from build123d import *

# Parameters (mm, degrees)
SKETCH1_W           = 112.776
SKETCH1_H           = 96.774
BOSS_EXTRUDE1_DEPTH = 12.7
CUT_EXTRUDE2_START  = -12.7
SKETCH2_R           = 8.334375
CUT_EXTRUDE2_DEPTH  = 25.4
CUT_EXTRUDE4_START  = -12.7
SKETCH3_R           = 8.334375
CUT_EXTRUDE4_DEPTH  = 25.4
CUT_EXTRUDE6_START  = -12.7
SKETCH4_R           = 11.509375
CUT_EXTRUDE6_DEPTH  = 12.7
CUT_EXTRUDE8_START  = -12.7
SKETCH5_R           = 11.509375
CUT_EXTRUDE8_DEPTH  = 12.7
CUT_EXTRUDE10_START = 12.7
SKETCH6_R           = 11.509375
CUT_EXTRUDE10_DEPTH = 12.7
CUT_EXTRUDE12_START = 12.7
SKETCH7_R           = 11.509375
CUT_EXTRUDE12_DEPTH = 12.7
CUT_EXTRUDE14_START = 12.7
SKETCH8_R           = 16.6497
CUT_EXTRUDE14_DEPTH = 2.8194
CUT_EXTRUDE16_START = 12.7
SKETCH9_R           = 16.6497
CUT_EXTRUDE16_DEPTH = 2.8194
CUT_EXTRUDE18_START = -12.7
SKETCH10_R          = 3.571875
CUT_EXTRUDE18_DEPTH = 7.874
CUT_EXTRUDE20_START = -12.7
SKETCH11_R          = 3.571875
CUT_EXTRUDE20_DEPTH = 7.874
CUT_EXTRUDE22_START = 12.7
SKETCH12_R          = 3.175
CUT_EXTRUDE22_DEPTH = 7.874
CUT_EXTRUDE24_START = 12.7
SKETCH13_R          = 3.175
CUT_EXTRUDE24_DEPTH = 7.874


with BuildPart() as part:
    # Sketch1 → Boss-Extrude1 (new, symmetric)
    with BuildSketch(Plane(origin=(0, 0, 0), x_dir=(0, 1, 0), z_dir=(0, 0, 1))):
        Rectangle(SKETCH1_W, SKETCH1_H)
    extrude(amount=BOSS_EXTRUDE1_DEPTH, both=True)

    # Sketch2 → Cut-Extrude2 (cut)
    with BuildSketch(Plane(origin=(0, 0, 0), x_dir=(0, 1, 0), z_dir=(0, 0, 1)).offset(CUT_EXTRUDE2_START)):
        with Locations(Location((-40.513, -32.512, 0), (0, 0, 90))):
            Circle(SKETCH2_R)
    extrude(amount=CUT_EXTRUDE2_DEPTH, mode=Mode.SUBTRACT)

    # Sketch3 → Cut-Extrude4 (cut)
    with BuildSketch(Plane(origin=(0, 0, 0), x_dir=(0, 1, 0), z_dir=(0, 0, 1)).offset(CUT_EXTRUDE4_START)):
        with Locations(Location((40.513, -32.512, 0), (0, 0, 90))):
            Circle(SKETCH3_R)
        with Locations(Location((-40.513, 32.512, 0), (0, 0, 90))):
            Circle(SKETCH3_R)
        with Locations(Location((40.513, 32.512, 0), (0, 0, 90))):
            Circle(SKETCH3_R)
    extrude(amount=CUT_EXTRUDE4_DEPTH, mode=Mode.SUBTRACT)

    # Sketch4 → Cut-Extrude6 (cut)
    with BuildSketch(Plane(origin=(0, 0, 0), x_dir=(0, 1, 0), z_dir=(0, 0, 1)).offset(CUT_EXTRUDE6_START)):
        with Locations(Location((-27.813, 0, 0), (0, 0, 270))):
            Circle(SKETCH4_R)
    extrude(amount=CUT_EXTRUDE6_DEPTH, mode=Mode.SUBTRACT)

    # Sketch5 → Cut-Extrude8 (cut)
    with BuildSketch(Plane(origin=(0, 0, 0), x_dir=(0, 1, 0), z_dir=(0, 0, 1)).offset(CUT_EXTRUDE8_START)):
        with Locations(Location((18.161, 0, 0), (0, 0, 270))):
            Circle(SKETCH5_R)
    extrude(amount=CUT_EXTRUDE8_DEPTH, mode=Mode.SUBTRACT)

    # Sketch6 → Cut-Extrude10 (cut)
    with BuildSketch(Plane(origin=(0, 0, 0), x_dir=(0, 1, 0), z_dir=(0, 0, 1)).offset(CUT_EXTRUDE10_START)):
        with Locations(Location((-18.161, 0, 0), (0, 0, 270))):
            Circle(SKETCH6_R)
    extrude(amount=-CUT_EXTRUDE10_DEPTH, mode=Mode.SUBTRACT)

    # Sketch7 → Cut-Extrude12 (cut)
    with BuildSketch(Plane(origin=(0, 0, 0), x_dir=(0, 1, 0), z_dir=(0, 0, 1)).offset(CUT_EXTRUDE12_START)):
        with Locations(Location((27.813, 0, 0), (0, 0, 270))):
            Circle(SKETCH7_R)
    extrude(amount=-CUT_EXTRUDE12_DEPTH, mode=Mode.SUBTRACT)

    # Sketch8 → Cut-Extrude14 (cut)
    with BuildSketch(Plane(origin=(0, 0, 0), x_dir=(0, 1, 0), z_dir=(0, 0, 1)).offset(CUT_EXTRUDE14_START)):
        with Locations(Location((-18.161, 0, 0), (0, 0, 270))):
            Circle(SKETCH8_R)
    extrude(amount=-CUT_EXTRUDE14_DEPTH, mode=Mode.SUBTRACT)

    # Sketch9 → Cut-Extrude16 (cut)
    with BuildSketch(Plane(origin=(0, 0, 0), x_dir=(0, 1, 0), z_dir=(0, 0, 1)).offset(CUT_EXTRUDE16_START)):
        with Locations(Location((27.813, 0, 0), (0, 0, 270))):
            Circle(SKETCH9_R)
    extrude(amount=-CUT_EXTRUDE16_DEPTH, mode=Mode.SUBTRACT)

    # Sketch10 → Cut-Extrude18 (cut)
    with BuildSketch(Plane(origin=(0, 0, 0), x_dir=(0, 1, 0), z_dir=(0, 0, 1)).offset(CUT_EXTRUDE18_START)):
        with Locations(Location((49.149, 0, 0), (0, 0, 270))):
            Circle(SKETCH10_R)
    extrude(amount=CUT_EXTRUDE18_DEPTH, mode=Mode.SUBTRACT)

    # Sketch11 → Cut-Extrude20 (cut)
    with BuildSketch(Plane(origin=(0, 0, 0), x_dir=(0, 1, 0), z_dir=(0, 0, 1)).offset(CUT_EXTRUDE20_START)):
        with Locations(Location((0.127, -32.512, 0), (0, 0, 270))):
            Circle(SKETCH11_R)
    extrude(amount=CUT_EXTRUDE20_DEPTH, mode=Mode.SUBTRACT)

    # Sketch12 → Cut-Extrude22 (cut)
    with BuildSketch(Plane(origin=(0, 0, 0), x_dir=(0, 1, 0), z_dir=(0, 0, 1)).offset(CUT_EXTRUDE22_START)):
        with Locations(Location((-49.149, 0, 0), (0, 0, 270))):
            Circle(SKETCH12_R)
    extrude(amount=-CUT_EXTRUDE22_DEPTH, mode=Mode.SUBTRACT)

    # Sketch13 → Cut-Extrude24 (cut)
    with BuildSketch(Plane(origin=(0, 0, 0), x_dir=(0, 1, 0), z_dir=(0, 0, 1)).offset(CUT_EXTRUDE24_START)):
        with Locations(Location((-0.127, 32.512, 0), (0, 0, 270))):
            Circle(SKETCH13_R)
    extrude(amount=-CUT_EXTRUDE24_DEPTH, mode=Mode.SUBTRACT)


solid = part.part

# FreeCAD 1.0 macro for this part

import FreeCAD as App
import Part
import Sketcher
Q = App.Units.Quantity


def add_polygon(sketch, points):
    """Adds a closed chain of lines whose ends are joined by coincident constraints."""
    first, n = sketch.GeometryCount, len(points)
    for a, b in zip(points, points[1:] + points[:1]):
        sketch.addGeometry(Part.LineSegment(App.Vector(*a, 0), App.Vector(*b, 0)), False)
    for i in range(n):
        sketch.addConstraint(Sketcher.Constraint("Coincident", first + i, 2, first + (i + 1) % n, 1))

doc = App.newDocument("Part")
params = doc.addObject("Spreadsheet::Sheet", "Params")
for row, (alias, value) in enumerate([
    ("sketch1_width", "3.81 in"),
    ("sketch1_height", "4.44 in"),
    ("pad1_length", "1 in"),
    ("sketch2_diameter", "0.65625 in"),
    ("pocket1_length", "1 in"),
    ("sketch3_diameter", "0.65625 in"),
    ("pocket2_length", "1 in"),
    ("sketch4_diameter", "0.90625 in"),
    ("pocket3_length", "0.5 in"),
    ("sketch5_diameter", "0.90625 in"),
    ("pocket4_length", "0.5 in"),
    ("sketch6_diameter", "0.90625 in"),
    ("pocket5_length", "0.5 in"),
    ("sketch7_diameter", "0.90625 in"),
    ("pocket6_length", "0.5 in"),
    ("sketch8_diameter", "1.311 in"),
    ("pocket7_length", "0.111 in"),
    ("sketch9_diameter", "1.311 in"),
    ("pocket8_length", "0.111 in"),
    ("sketch10_diameter", "0.28125 in"),
    ("pocket9_length", "0.31 in"),
    ("sketch11_diameter", "0.28125 in"),
    ("pocket10_length", "0.31 in"),
    ("sketch12_diameter", "0.25 in"),
    ("pocket11_length", "0.31 in"),
    ("sketch13_diameter", "0.25 in"),
    ("pocket12_length", "0.31 in"),
], start=1):
    params.set(f"A{row}", alias)
    params.set(f"B{row}", "=" + value)
    params.setAlias(f"B{row}", alias)

body = doc.addObject("PartDesign::Body", "Body")

# Sketch on XY plane
sketch1 = body.newObject("Sketcher::SketchObject", "Sketch")
sketch1.AttachmentSupport = (doc.getObject("XY_Plane"), [""])
sketch1.MapMode = "FlatFace"
add_polygon(sketch1, [(-48, -56), (48, -56), (48, 56), (-48, 56)])  # lines 0-3
sketch1.addConstraint(Sketcher.Constraint("Horizontal", 0))
sketch1.addConstraint(Sketcher.Constraint("Vertical", 1))
sketch1.addConstraint(Sketcher.Constraint("Horizontal", 2))
sketch1.addConstraint(Sketcher.Constraint("Vertical", 3))
sketch1.addConstraint(Sketcher.Constraint("Symmetric", 0, 2, 2, 2, -1, 1))
sketch1.addConstraint(Sketcher.Constraint("DistanceX", 0, 1, 0, 2, Q("3.81 in")))
sketch1.addConstraint(Sketcher.Constraint("DistanceY", 1, 1, 1, 2, Q("4.44 in")))
sketch1.setExpression("Constraints[9]", "Params.sketch1_width")
sketch1.setExpression("Constraints[10]", "Params.sketch1_height")
pad1 = body.newObject("PartDesign::Pad", "Pad")
pad1.Profile = sketch1
pad1.setExpression("Length", "Params.pad1_length")
pad1.Midplane = True

# Sketch on XY plane
sketch2 = body.newObject("Sketcher::SketchObject", "Sketch001")
sketch2.AttachmentSupport = (doc.getObject("XY_Plane"), [""])
sketch2.MapMode = "FlatFace"
sketch2.AttachmentOffset = App.Placement(App.Vector(0, 0, -0.5 * 25.4), App.Rotation())
sketch2.addGeometry(Part.Circle(App.Vector(33, -41, 0), App.Vector(0, 0, 1), 8), False)
sketch2.addConstraint(Sketcher.Constraint("Diameter", 0, Q("0.65625 in")))
sketch2.addConstraint(Sketcher.Constraint("DistanceX", -1, 1, 0, 3, Q("1.28 in")))
sketch2.addConstraint(Sketcher.Constraint("DistanceY", 0, 3, -1, 1, Q("1.595 in")))
sketch2.setExpression("Constraints[0]", "Params.sketch2_diameter")
pocket1 = body.newObject("PartDesign::Pocket", "Pocket")
pocket1.Profile = sketch2
pocket1.setExpression("Length", "Params.pocket1_length")
pocket1.Reversed = True

# Sketch on XY plane
sketch3 = body.newObject("Sketcher::SketchObject", "Sketch002")
sketch3.AttachmentSupport = (doc.getObject("XY_Plane"), [""])
sketch3.MapMode = "FlatFace"
sketch3.AttachmentOffset = App.Placement(App.Vector(0, 0, -0.5 * 25.4), App.Rotation())
sketch3.addGeometry(Part.Circle(App.Vector(33, 41, 0), App.Vector(0, 0, 1), 8), False)
sketch3.addGeometry(Part.Circle(App.Vector(-33, -41, 0), App.Vector(0, 0, 1), 8), False)
sketch3.addGeometry(Part.Circle(App.Vector(-33, 41, 0), App.Vector(0, 0, 1), 8), False)
sketch3.addConstraint(Sketcher.Constraint("Equal", 0, 1))
sketch3.addConstraint(Sketcher.Constraint("Equal", 1, 2))
sketch3.addConstraint(Sketcher.Constraint("Symmetric", 0, 3, 1, 3, -1, 1))
sketch3.addConstraint(Sketcher.Constraint("Symmetric", 0, 3, 2, 3, -2))
sketch3.addConstraint(Sketcher.Constraint("Diameter", 0, Q("0.65625 in")))
sketch3.addConstraint(Sketcher.Constraint("DistanceX", -1, 1, 0, 3, Q("1.28 in")))
sketch3.addConstraint(Sketcher.Constraint("DistanceY", 1, 3, 0, 3, Q("3.19 in")))
sketch3.setExpression("Constraints[4]", "Params.sketch3_diameter")
pocket2 = body.newObject("PartDesign::Pocket", "Pocket001")
pocket2.Profile = sketch3
pocket2.setExpression("Length", "Params.pocket2_length")
pocket2.Reversed = True

# Sketch on XY plane
sketch4 = body.newObject("Sketcher::SketchObject", "Sketch003")
sketch4.AttachmentSupport = (doc.getObject("XY_Plane"), [""])
sketch4.MapMode = "FlatFace"
sketch4.AttachmentOffset = App.Placement(App.Vector(0, 0, -0.5 * 25.4), App.Rotation())
sketch4.addGeometry(Part.Circle(App.Vector(0, -28, 0), App.Vector(0, 0, 1), 12), False)
sketch4.addConstraint(Sketcher.Constraint("PointOnObject", 0, 3, -2))
sketch4.addConstraint(Sketcher.Constraint("Diameter", 0, Q("0.90625 in")))
sketch4.addConstraint(Sketcher.Constraint("DistanceY", 0, 3, -1, 1, Q("1.095 in")))
sketch4.setExpression("Constraints[1]", "Params.sketch4_diameter")
pocket3 = body.newObject("PartDesign::Pocket", "Pocket002")
pocket3.Profile = sketch4
pocket3.setExpression("Length", "Params.pocket3_length")
pocket3.Reversed = True

# Sketch on XY plane
sketch5 = body.newObject("Sketcher::SketchObject", "Sketch004")
sketch5.AttachmentSupport = (doc.getObject("XY_Plane"), [""])
sketch5.MapMode = "FlatFace"
sketch5.AttachmentOffset = App.Placement(App.Vector(0, 0, -0.5 * 25.4), App.Rotation())
sketch5.addGeometry(Part.Circle(App.Vector(0, 18, 0), App.Vector(0, 0, 1), 12), False)
sketch5.addConstraint(Sketcher.Constraint("PointOnObject", 0, 3, -2))
sketch5.addConstraint(Sketcher.Constraint("Diameter", 0, Q("0.90625 in")))
sketch5.addConstraint(Sketcher.Constraint("DistanceY", -1, 1, 0, 3, Q("0.715 in")))
sketch5.setExpression("Constraints[1]", "Params.sketch5_diameter")
pocket4 = body.newObject("PartDesign::Pocket", "Pocket003")
pocket4.Profile = sketch5
pocket4.setExpression("Length", "Params.pocket4_length")
pocket4.Reversed = True

# Sketch on XY plane
sketch6 = body.newObject("Sketcher::SketchObject", "Sketch005")
sketch6.AttachmentSupport = (doc.getObject("XY_Plane"), [""])
sketch6.MapMode = "FlatFace"
sketch6.AttachmentOffset = App.Placement(App.Vector(0, 0, 0.5 * 25.4), App.Rotation())
sketch6.addGeometry(Part.Circle(App.Vector(0, -18, 0), App.Vector(0, 0, 1), 12), False)
sketch6.addConstraint(Sketcher.Constraint("PointOnObject", 0, 3, -2))
sketch6.addConstraint(Sketcher.Constraint("Diameter", 0, Q("0.90625 in")))
sketch6.addConstraint(Sketcher.Constraint("DistanceY", 0, 3, -1, 1, Q("0.715 in")))
sketch6.setExpression("Constraints[1]", "Params.sketch6_diameter")
pocket5 = body.newObject("PartDesign::Pocket", "Pocket004")
pocket5.Profile = sketch6
pocket5.setExpression("Length", "Params.pocket5_length")

# Sketch on XY plane
sketch7 = body.newObject("Sketcher::SketchObject", "Sketch006")
sketch7.AttachmentSupport = (doc.getObject("XY_Plane"), [""])
sketch7.MapMode = "FlatFace"
sketch7.AttachmentOffset = App.Placement(App.Vector(0, 0, 0.5 * 25.4), App.Rotation())
sketch7.addGeometry(Part.Circle(App.Vector(0, 28, 0), App.Vector(0, 0, 1), 12), False)
sketch7.addConstraint(Sketcher.Constraint("PointOnObject", 0, 3, -2))
sketch7.addConstraint(Sketcher.Constraint("Diameter", 0, Q("0.90625 in")))
sketch7.addConstraint(Sketcher.Constraint("DistanceY", -1, 1, 0, 3, Q("1.095 in")))
sketch7.setExpression("Constraints[1]", "Params.sketch7_diameter")
pocket6 = body.newObject("PartDesign::Pocket", "Pocket005")
pocket6.Profile = sketch7
pocket6.setExpression("Length", "Params.pocket6_length")

# Sketch on XY plane
sketch8 = body.newObject("Sketcher::SketchObject", "Sketch007")
sketch8.AttachmentSupport = (doc.getObject("XY_Plane"), [""])
sketch8.MapMode = "FlatFace"
sketch8.AttachmentOffset = App.Placement(App.Vector(0, 0, 0.5 * 25.4), App.Rotation())
sketch8.addGeometry(Part.Circle(App.Vector(0, -18, 0), App.Vector(0, 0, 1), 17), False)
sketch8.addConstraint(Sketcher.Constraint("PointOnObject", 0, 3, -2))
sketch8.addConstraint(Sketcher.Constraint("Diameter", 0, Q("1.311 in")))
sketch8.addConstraint(Sketcher.Constraint("DistanceY", 0, 3, -1, 1, Q("0.715 in")))
sketch8.setExpression("Constraints[1]", "Params.sketch8_diameter")
pocket7 = body.newObject("PartDesign::Pocket", "Pocket006")
pocket7.Profile = sketch8
pocket7.setExpression("Length", "Params.pocket7_length")

# Sketch on XY plane
sketch9 = body.newObject("Sketcher::SketchObject", "Sketch008")
sketch9.AttachmentSupport = (doc.getObject("XY_Plane"), [""])
sketch9.MapMode = "FlatFace"
sketch9.AttachmentOffset = App.Placement(App.Vector(0, 0, 0.5 * 25.4), App.Rotation())
sketch9.addGeometry(Part.Circle(App.Vector(0, 28, 0), App.Vector(0, 0, 1), 17), False)
sketch9.addConstraint(Sketcher.Constraint("PointOnObject", 0, 3, -2))
sketch9.addConstraint(Sketcher.Constraint("Diameter", 0, Q("1.311 in")))
sketch9.addConstraint(Sketcher.Constraint("DistanceY", -1, 1, 0, 3, Q("1.095 in")))
sketch9.setExpression("Constraints[1]", "Params.sketch9_diameter")
pocket8 = body.newObject("PartDesign::Pocket", "Pocket007")
pocket8.Profile = sketch9
pocket8.setExpression("Length", "Params.pocket8_length")

# Sketch on XY plane
sketch10 = body.newObject("Sketcher::SketchObject", "Sketch009")
sketch10.AttachmentSupport = (doc.getObject("XY_Plane"), [""])
sketch10.MapMode = "FlatFace"
sketch10.AttachmentOffset = App.Placement(App.Vector(0, 0, -0.5 * 25.4), App.Rotation())
sketch10.addGeometry(Part.Circle(App.Vector(0, 49.1, 0), App.Vector(0, 0, 1), 3.6), False)
sketch10.addConstraint(Sketcher.Constraint("PointOnObject", 0, 3, -2))
sketch10.addConstraint(Sketcher.Constraint("Diameter", 0, Q("0.28125 in")))
sketch10.addConstraint(Sketcher.Constraint("DistanceY", -1, 1, 0, 3, Q("1.935 in")))
sketch10.setExpression("Constraints[1]", "Params.sketch10_diameter")
pocket9 = body.newObject("PartDesign::Pocket", "Pocket008")
pocket9.Profile = sketch10
pocket9.setExpression("Length", "Params.pocket9_length")
pocket9.Reversed = True

# Sketch on XY plane
sketch11 = body.newObject("Sketcher::SketchObject", "Sketch010")
sketch11.AttachmentSupport = (doc.getObject("XY_Plane"), [""])
sketch11.MapMode = "FlatFace"
sketch11.AttachmentOffset = App.Placement(App.Vector(0, 0, -0.5 * 25.4), App.Rotation())
sketch11.addGeometry(Part.Circle(App.Vector(32.5, 0.1, 0), App.Vector(0, 0, 1), 3.6), False)
sketch11.addConstraint(Sketcher.Constraint("Diameter", 0, Q("0.28125 in")))
sketch11.addConstraint(Sketcher.Constraint("DistanceX", -1, 1, 0, 3, Q("1.28 in")))
sketch11.addConstraint(Sketcher.Constraint("DistanceY", -1, 1, 0, 3, Q("0.005 in")))
sketch11.setExpression("Constraints[0]", "Params.sketch11_diameter")
pocket10 = body.newObject("PartDesign::Pocket", "Pocket009")
pocket10.Profile = sketch11
pocket10.setExpression("Length", "Params.pocket10_length")
pocket10.Reversed = True

# Sketch on XY plane
sketch12 = body.newObject("Sketcher::SketchObject", "Sketch011")
sketch12.AttachmentSupport = (doc.getObject("XY_Plane"), [""])
sketch12.MapMode = "FlatFace"
sketch12.AttachmentOffset = App.Placement(App.Vector(0, 0, 0.5 * 25.4), App.Rotation())
sketch12.addGeometry(Part.Circle(App.Vector(0, -49.1, 0), App.Vector(0, 0, 1), 3.2), False)
sketch12.addConstraint(Sketcher.Constraint("PointOnObject", 0, 3, -2))
sketch12.addConstraint(Sketcher.Constraint("Diameter", 0, Q("0.25 in")))
sketch12.addConstraint(Sketcher.Constraint("DistanceY", 0, 3, -1, 1, Q("1.935 in")))
sketch12.setExpression("Constraints[1]", "Params.sketch12_diameter")
pocket11 = body.newObject("PartDesign::Pocket", "Pocket010")
pocket11.Profile = sketch12
pocket11.setExpression("Length", "Params.pocket11_length")

# Sketch on XY plane
sketch13 = body.newObject("Sketcher::SketchObject", "Sketch012")
sketch13.AttachmentSupport = (doc.getObject("XY_Plane"), [""])
sketch13.MapMode = "FlatFace"
sketch13.AttachmentOffset = App.Placement(App.Vector(0, 0, 0.5 * 25.4), App.Rotation())
sketch13.addGeometry(Part.Circle(App.Vector(-32.5, -0.1, 0), App.Vector(0, 0, 1), 3.2), False)
sketch13.addConstraint(Sketcher.Constraint("Diameter", 0, Q("0.25 in")))
sketch13.addConstraint(Sketcher.Constraint("DistanceX", 0, 3, -1, 1, Q("1.28 in")))
sketch13.addConstraint(Sketcher.Constraint("DistanceY", 0, 3, -1, 1, Q("0.005 in")))
sketch13.setExpression("Constraints[0]", "Params.sketch13_diameter")
pocket12 = body.newObject("PartDesign::Pocket", "Pocket011")
pocket12.Profile = sketch13
pocket12.setExpression("Length", "Params.pocket12_length")

doc.recompute()
